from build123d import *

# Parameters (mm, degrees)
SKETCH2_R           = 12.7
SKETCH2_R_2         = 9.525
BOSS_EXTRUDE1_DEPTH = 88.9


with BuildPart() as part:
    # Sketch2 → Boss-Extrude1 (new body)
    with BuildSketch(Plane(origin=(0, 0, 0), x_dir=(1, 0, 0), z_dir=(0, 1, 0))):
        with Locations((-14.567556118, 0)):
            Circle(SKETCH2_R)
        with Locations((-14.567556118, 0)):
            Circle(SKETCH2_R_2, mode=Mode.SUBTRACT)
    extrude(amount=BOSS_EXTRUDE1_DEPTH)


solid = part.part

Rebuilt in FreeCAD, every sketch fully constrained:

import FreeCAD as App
import Part
import Sketcher
from FreeCAD import Vector
Q = App.Units.Quantity

doc = App.newDocument("Part")
params = doc.addObject("Spreadsheet::Sheet", "Params")
for row, (alias, value) in enumerate([
    ("sketch1_diameter", "1 in"),
    ("sketch1_diameter2", "0.75 in"),
    ("pad1_length", "3.5 in"),
], start=1):
    params.set(f"A{row}", alias)
    params.set(f"B{row}", "=" + value)
    params.setAlias(f"B{row}", alias)

body = doc.addObject("PartDesign::Body", "Body")

sketch1 = doc.addObject("Sketcher::SketchObject", "Sketch")
body.addObject(sketch1)
sketch1.AttachmentSupport = (doc.XZ_Plane, [""])
sketch1.MapMode = "FlatFace"
sketch1.addGeometry([
    Part.Circle(Vector(-15, 0, 0), Vector(0, 0, 1), 13),
    Part.Circle(Vector(-15, 0, 0), Vector(0, 0, 1), 10),
], False)
sketch1.addConstraint([
    Sketcher.Constraint("Coincident", 1, 3, 0, 3),
    Sketcher.Constraint("PointOnObject", 0, 3, -1),
    Sketcher.Constraint("Diameter", 0, Q("1 in")),
    Sketcher.Constraint("Diameter", 1, Q("0.75 in")),
    Sketcher.Constraint("DistanceX", 0, 3, -1, 1, Q("14.567556 mm")),
])
sketch1.setExpression("Constraints[2]", "Params.sketch1_diameter")
sketch1.setExpression("Constraints[3]", "Params.sketch1_diameter2")
pad1 = doc.addObject("PartDesign::Pad", "Pad")
body.addObject(pad1)
pad1.Profile = sketch1
pad1.setExpression("Length", "Params.pad1_length")
pad1.Reversed = True

doc.recompute()
